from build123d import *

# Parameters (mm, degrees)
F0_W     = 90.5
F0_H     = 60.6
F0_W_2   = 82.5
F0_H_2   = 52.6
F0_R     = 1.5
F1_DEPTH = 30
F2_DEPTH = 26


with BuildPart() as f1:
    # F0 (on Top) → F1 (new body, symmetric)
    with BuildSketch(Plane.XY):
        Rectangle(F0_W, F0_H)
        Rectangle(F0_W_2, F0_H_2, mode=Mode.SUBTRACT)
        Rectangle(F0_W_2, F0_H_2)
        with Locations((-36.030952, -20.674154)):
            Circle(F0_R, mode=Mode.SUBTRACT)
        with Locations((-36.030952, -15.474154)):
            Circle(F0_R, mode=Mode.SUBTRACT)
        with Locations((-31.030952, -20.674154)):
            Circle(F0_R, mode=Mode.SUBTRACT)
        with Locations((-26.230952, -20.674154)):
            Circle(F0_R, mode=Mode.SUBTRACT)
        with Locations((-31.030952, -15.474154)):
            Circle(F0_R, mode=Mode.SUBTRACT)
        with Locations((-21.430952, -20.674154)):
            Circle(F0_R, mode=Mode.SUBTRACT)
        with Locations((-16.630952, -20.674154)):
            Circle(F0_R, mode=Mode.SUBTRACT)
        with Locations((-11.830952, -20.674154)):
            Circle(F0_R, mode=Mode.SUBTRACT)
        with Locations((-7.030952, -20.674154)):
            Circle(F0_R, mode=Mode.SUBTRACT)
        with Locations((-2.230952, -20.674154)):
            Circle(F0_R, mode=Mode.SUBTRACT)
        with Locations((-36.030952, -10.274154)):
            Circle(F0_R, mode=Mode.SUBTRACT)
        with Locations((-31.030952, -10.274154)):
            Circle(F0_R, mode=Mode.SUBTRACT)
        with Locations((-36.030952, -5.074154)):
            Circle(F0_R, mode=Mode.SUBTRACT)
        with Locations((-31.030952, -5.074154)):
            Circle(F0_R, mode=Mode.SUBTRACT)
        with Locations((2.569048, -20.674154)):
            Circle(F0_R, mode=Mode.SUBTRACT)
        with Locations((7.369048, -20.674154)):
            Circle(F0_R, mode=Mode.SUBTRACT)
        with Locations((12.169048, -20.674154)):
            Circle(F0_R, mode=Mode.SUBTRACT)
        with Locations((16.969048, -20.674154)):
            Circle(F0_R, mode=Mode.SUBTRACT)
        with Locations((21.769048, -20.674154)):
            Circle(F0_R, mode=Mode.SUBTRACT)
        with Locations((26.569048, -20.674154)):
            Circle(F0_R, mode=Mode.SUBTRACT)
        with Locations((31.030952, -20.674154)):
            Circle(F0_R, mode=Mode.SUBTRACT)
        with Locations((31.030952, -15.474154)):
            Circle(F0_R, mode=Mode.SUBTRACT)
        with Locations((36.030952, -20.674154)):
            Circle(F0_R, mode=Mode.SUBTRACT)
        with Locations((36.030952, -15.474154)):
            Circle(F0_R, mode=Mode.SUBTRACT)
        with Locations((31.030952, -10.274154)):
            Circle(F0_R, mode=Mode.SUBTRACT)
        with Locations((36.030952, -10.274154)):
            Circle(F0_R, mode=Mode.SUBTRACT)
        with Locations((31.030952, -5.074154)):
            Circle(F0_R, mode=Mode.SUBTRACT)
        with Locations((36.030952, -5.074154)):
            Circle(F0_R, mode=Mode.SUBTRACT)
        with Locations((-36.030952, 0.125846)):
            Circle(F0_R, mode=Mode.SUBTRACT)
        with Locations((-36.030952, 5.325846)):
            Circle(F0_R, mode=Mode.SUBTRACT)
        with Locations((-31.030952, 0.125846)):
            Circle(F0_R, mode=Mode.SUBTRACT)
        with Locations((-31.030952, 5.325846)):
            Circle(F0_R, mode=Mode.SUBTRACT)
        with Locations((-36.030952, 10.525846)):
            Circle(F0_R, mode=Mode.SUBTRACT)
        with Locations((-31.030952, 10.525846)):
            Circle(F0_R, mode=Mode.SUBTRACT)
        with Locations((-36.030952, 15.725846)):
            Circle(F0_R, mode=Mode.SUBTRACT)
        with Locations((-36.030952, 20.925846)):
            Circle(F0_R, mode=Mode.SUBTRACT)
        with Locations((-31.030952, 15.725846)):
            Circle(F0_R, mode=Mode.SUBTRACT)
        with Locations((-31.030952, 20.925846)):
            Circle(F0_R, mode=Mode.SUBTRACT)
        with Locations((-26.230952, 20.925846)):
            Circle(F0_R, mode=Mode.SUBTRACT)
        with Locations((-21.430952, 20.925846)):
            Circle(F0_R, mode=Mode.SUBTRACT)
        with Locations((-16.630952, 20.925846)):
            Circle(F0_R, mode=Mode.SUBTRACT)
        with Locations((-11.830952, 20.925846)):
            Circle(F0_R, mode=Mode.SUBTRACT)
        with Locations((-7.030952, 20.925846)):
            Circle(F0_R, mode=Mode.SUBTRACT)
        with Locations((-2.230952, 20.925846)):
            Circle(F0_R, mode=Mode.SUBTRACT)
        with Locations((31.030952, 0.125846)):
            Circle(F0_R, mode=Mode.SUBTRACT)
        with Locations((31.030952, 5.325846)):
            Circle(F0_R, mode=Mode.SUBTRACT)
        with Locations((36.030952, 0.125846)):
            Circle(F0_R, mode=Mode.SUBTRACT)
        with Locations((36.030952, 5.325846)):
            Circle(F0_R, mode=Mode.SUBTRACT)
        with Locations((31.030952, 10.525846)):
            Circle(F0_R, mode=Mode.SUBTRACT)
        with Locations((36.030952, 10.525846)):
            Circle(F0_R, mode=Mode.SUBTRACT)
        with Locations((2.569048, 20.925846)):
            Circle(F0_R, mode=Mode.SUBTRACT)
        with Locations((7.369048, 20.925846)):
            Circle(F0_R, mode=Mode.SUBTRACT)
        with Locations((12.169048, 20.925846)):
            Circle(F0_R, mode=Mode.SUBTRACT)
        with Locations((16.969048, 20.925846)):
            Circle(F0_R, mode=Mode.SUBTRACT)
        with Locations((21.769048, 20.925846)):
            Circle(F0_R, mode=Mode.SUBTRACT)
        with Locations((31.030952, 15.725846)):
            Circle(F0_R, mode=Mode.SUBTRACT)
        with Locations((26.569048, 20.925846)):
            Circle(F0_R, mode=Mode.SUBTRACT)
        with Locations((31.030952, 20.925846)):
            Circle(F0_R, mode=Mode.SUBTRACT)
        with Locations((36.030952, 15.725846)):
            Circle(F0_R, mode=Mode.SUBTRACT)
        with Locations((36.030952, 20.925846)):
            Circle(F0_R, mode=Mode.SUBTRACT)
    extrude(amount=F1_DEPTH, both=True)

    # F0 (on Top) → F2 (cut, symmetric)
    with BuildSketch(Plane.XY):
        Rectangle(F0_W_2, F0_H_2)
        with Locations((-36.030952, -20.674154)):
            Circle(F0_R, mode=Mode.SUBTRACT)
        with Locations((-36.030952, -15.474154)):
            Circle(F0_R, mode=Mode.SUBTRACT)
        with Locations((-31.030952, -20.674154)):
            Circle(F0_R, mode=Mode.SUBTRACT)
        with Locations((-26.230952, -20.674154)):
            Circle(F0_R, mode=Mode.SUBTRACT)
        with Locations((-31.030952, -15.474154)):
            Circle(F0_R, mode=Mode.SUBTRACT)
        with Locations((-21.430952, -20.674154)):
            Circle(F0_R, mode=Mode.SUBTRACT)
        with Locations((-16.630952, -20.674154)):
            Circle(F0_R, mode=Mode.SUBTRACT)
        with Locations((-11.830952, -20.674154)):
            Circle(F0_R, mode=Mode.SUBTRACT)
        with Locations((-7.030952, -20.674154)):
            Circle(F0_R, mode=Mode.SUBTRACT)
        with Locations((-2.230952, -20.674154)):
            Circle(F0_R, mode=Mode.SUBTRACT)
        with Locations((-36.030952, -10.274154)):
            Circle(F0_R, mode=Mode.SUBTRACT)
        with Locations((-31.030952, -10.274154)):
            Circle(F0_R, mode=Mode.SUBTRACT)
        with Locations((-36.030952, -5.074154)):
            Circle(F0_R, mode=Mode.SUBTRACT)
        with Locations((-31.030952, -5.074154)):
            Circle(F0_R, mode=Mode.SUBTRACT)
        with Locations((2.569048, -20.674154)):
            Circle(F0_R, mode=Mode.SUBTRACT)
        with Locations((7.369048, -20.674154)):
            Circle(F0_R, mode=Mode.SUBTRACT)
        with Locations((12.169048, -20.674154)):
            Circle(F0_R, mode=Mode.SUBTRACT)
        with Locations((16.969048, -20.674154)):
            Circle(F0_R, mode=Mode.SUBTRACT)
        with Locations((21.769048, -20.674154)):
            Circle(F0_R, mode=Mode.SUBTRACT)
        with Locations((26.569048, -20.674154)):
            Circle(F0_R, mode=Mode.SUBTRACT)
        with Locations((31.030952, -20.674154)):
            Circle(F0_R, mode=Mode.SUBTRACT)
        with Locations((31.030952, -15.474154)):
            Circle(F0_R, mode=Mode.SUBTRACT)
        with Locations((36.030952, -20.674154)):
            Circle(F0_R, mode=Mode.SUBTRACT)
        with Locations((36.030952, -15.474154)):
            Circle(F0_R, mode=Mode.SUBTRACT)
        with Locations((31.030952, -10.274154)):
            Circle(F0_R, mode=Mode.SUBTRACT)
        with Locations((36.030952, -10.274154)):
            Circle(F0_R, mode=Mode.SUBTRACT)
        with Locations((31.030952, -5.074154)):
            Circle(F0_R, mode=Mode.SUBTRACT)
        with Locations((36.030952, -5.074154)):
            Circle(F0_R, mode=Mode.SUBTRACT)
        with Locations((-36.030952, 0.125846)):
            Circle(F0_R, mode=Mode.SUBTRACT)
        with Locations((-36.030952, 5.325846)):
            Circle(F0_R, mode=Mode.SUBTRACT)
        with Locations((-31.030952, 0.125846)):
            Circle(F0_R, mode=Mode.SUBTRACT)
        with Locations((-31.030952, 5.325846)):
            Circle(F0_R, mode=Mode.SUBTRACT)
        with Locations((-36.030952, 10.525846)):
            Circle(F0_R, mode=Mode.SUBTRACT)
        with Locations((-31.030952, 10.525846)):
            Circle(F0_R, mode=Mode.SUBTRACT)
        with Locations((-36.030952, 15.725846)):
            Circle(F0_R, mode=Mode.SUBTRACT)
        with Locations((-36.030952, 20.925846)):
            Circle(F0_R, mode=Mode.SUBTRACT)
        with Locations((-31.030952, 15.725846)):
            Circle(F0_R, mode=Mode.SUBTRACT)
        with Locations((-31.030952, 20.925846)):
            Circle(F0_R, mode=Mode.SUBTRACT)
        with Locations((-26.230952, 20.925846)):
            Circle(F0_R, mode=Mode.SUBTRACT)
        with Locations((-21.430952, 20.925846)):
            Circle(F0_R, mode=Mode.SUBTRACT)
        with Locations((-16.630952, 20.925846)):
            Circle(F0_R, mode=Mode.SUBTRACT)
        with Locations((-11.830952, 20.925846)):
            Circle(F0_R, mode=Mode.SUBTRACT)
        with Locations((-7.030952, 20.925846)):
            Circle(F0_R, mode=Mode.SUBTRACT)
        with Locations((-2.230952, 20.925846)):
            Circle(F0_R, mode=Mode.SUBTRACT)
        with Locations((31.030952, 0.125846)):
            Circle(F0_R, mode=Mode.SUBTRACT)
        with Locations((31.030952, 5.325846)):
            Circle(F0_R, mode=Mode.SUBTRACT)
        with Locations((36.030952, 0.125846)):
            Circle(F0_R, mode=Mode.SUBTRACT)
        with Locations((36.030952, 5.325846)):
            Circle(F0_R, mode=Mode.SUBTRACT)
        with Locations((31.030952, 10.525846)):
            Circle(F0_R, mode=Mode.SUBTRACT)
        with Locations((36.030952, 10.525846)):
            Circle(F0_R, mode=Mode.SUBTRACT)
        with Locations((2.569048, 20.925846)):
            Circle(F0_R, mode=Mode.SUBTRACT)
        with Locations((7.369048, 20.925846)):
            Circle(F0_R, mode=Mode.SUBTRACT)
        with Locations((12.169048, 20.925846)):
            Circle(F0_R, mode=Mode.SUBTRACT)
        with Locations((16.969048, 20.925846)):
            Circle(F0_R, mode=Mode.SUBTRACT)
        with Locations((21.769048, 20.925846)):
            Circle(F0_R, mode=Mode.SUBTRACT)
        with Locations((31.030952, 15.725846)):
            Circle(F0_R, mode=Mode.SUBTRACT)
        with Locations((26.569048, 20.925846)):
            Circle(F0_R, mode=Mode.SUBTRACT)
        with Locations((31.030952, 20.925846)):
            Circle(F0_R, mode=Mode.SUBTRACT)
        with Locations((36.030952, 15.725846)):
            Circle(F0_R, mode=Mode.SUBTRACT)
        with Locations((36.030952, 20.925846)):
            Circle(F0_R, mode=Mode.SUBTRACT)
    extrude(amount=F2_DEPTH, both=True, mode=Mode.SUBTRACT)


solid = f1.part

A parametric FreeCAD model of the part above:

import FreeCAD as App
import Part
import Sketcher

V = App.Vector
Q = App.Units.Quantity


def add_polygon(sketch, points):
    """Adds a closed chain of lines whose ends are joined by coincident constraints."""
    first, n = sketch.GeometryCount, len(points)
    for a, b in zip(points, points[1:] + points[:1]):
        sketch.addGeometry(Part.LineSegment(App.Vector(*a, 0), App.Vector(*b, 0)), False)
    for i in range(n):
        sketch.addConstraint(Sketcher.Constraint("Coincident", first + i, 2, first + (i + 1) % n, 1))

doc = App.newDocument("Part")
body = doc.addObject("PartDesign::Body", "Body")

sketch1 = body.newObject("Sketcher::SketchObject", "Sketch")
sketch1.AttachmentSupport = (doc.getObject("XY_Plane"), [""])
sketch1.MapMode = "FlatFace"
add_polygon(sketch1, [(-45.2, 30.3), (-45.2, -30.3), (45.2, -30.3), (45.2, 30.3)])
sketch1.addGeometry(Part.Circle(V(-36, -20.7, 0), V(0, 0, 1), 1.5), False)
sketch1.addGeometry(Part.Circle(V(-31, -20.7, 0), V(0, 0, 1), 1.5), False)
sketch1.addGeometry(Part.Circle(V(-26.2, -20.7, 0), V(0, 0, 1), 1.5), False)
sketch1.addGeometry(Part.Circle(V(-21.4, -20.7, 0), V(0, 0, 1), 1.5), False)
sketch1.addGeometry(Part.Circle(V(-36, -15.5, 0), V(0, 0, 1), 1.5), False)
sketch1.addGeometry(Part.Circle(V(-31, -15.5, 0), V(0, 0, 1), 1.5), False)
sketch1.addGeometry(Part.Circle(V(-16.6, -20.7, 0), V(0, 0, 1), 1.5), False)
sketch1.addGeometry(Part.Circle(V(-11.8, -20.7, 0), V(0, 0, 1), 1.5), False)
sketch1.addGeometry(Part.Circle(V(-7, -20.7, 0), V(0, 0, 1), 1.5), False)
sketch1.addGeometry(Part.Circle(V(-2.2, -20.7, 0), V(0, 0, 1), 1.5), False)
sketch1.addGeometry(Part.Circle(V(-36, -10.3, 0), V(0, 0, 1), 1.5), False)
sketch1.addGeometry(Part.Circle(V(-31, -10.3, 0), V(0, 0, 1), 1.5), False)
sketch1.addGeometry(Part.Circle(V(-36, -5.1, 0), V(0, 0, 1), 1.5), False)
sketch1.addGeometry(Part.Circle(V(-31, -5.1, 0), V(0, 0, 1), 1.5), False)
sketch1.addGeometry(Part.Circle(V(2.6, -20.7, 0), V(0, 0, 1), 1.5), False)
sketch1.addGeometry(Part.Circle(V(7.4, -20.7, 0), V(0, 0, 1), 1.5), False)
sketch1.addGeometry(Part.Circle(V(12.2, -20.7, 0), V(0, 0, 1), 1.5), False)
sketch1.addGeometry(Part.Circle(V(17, -20.7, 0), V(0, 0, 1), 1.5), False)
sketch1.addGeometry(Part.Circle(V(21.8, -20.7, 0), V(0, 0, 1), 1.5), False)
sketch1.addGeometry(Part.Circle(V(26.6, -20.7, 0), V(0, 0, 1), 1.5), False)
sketch1.addGeometry(Part.Circle(V(31, -20.7, 0), V(0, 0, 1), 1.5), False)
sketch1.addGeometry(Part.Circle(V(36, -20.7, 0), V(0, 0, 1), 1.5), False)
sketch1.addGeometry(Part.Circle(V(31, -15.5, 0), V(0, 0, 1), 1.5), False)
sketch1.addGeometry(Part.Circle(V(36, -15.5, 0), V(0, 0, 1), 1.5), False)
sketch1.addGeometry(Part.Circle(V(31, -10.3, 0), V(0, 0, 1), 1.5), False)
sketch1.addGeometry(Part.Circle(V(36, -10.3, 0), V(0, 0, 1), 1.5), False)
sketch1.addGeometry(Part.Circle(V(31, -5.1, 0), V(0, 0, 1), 1.5), False)
sketch1.addGeometry(Part.Circle(V(36, -5.1, 0), V(0, 0, 1), 1.5), False)
sketch1.addGeometry(Part.Circle(V(-36, 0.1, 0), V(0, 0, 1), 1.5), False)
sketch1.addGeometry(Part.Circle(V(-31, 0.1, 0), V(0, 0, 1), 1.5), False)
sketch1.addGeometry(Part.Circle(V(-36, 5.3, 0), V(0, 0, 1), 1.5), False)
sketch1.addGeometry(Part.Circle(V(-31, 5.3, 0), V(0, 0, 1), 1.5), False)
sketch1.addGeometry(Part.Circle(V(-36, 10.5, 0), V(0, 0, 1), 1.5), False)
sketch1.addGeometry(Part.Circle(V(-31, 10.5, 0), V(0, 0, 1), 1.5), False)
sketch1.addGeometry(Part.Circle(V(-36, 15.7, 0), V(0, 0, 1), 1.5), False)
sketch1.addGeometry(Part.Circle(V(-31, 15.7, 0), V(0, 0, 1), 1.5), False)
sketch1.addGeometry(Part.Circle(V(-36, 20.9, 0), V(0, 0, 1), 1.5), False)
sketch1.addGeometry(Part.Circle(V(-31, 20.9, 0), V(0, 0, 1), 1.5), False)
sketch1.addGeometry(Part.Circle(V(-26.2, 20.9, 0), V(0, 0, 1), 1.5), False)
sketch1.addGeometry(Part.Circle(V(-21.4, 20.9, 0), V(0, 0, 1), 1.5), False)
sketch1.addGeometry(Part.Circle(V(-16.6, 20.9, 0), V(0, 0, 1), 1.5), False)
sketch1.addGeometry(Part.Circle(V(-11.8, 20.9, 0), V(0, 0, 1), 1.5), False)
sketch1.addGeometry(Part.Circle(V(-7, 20.9, 0), V(0, 0, 1), 1.5), False)
sketch1.addGeometry(Part.Circle(V(-2.2, 20.9, 0), V(0, 0, 1), 1.5), False)
sketch1.addGeometry(Part.Circle(V(31, 0.1, 0), V(0, 0, 1), 1.5), False)
sketch1.addGeometry(Part.Circle(V(36, 0.1, 0), V(0, 0, 1), 1.5), False)
sketch1.addGeometry(Part.Circle(V(31, 5.3, 0), V(0, 0, 1), 1.5), False)
sketch1.addGeometry(Part.Circle(V(36, 5.3, 0), V(0, 0, 1), 1.5), False)
sketch1.addGeometry(Part.Circle(V(31, 10.5, 0), V(0, 0, 1), 1.5), False)
sketch1.addGeometry(Part.Circle(V(36, 10.5, 0), V(0, 0, 1), 1.5), False)
sketch1.addGeometry(Part.Circle(V(2.6, 20.9, 0), V(0, 0, 1), 1.5), False)
sketch1.addGeometry(Part.Circle(V(7.4, 20.9, 0), V(0, 0, 1), 1.5), False)
sketch1.addGeometry(Part.Circle(V(12.2, 20.9, 0), V(0, 0, 1), 1.5), False)
sketch1.addGeometry(Part.Circle(V(17, 20.9, 0), V(0, 0, 1), 1.5), False)
sketch1.addGeometry(Part.Circle(V(31, 15.7, 0), V(0, 0, 1), 1.5), False)
sketch1.addGeometry(Part.Circle(V(36, 15.7, 0), V(0, 0, 1), 1.5), False)
sketch1.addGeometry(Part.Circle(V(21.8, 20.9, 0), V(0, 0, 1), 1.5), False)
sketch1.addGeometry(Part.Circle(V(26.6, 20.9, 0), V(0, 0, 1), 1.5), False)
sketch1.addGeometry(Part.Circle(V(31, 20.9, 0), V(0, 0, 1), 1.5), False)
sketch1.addGeometry(Part.Circle(V(36, 20.9, 0), V(0, 0, 1), 1.5), False)
sketch1.addConstraint([
    Sketcher.Constraint("Vertical", 0),
    Sketcher.Constraint("Horizontal", 1),
    Sketcher.Constraint("Vertical", 2),
    Sketcher.Constraint("Horizontal", 3),
    Sketcher.Constraint("Equal", 4, 5),
    Sketcher.Constraint("Equal", 5, 6),
    Sketcher.Constraint("Equal", 6, 7),
    Sketcher.Constraint("Equal", 7, 8),
    Sketcher.Constraint("Equal", 8, 9),
    Sketcher.Constraint("Equal", 9, 10),
    Sketcher.Constraint("Equal", 10, 11),
    Sketcher.Constraint("Equal", 11, 12),
    Sketcher.Constraint("Equal", 12, 13),
    Sketcher.Constraint("Equal", 13, 14),
    Sketcher.Constraint("Equal", 14, 15),
    Sketcher.Constraint("Equal", 15, 16),
    Sketcher.Constraint("Equal", 16, 17),
    Sketcher.Constraint("Equal", 17, 18),
    Sketcher.Constraint("Equal", 18, 19),
    Sketcher.Constraint("Equal", 19, 20),
    Sketcher.Constraint("Equal", 20, 21),
    Sketcher.Constraint("Equal", 21, 22),
    Sketcher.Constraint("Equal", 22, 23),
    Sketcher.Constraint("Equal", 23, 24),
    Sketcher.Constraint("Equal", 24, 25),
    Sketcher.Constraint("Equal", 25, 26),
    Sketcher.Constraint("Equal", 26, 27),
    Sketcher.Constraint("Equal", 27, 28),
    Sketcher.Constraint("Equal", 28, 29),
    Sketcher.Constraint("Equal", 29, 30),
    Sketcher.Constraint("Equal", 30, 31),
    Sketcher.Constraint("Equal", 31, 32),
    Sketcher.Constraint("Equal", 32, 33),
    Sketcher.Constraint("Equal", 33, 34),
    Sketcher.Constraint("Equal", 34, 35),
    Sketcher.Constraint("Equal", 35, 36),
    Sketcher.Constraint("Equal", 36, 37),
    Sketcher.Constraint("Equal", 37, 38),
    Sketcher.Constraint("Equal", 38, 39),
    Sketcher.Constraint("Equal", 39, 40),
    Sketcher.Constraint("Equal", 40, 41),
    Sketcher.Constraint("Equal", 41, 42),
    Sketcher.Constraint("Equal", 42, 43),
    Sketcher.Constraint("Equal", 43, 44),
    Sketcher.Constraint("Equal", 44, 45),
    Sketcher.Constraint("Equal", 45, 46),
    Sketcher.Constraint("Equal", 46, 47),
    Sketcher.Constraint("Equal", 47, 48),
    Sketcher.Constraint("Equal", 48, 49),
    Sketcher.Constraint("Equal", 49, 50),
    Sketcher.Constraint("Equal", 50, 51),
    Sketcher.Constraint("Equal", 51, 52),
    Sketcher.Constraint("Equal", 52, 53),
    Sketcher.Constraint("Equal", 53, 54),
    Sketcher.Constraint("Equal", 54, 55),
    Sketcher.Constraint("Equal", 55, 56),
    Sketcher.Constraint("Equal", 56, 57),
    Sketcher.Constraint("Equal", 57, 58),
    Sketcher.Constraint("Equal", 58, 59),
    Sketcher.Constraint("Equal", 59, 60),
    Sketcher.Constraint("Equal", 60, 61),
    Sketcher.Constraint("Equal", 61, 62),
    Sketcher.Constraint("Equal", 62, 63),
    Sketcher.Constraint("Symmetric", 0, 2, 2, 2, -1, 1),
    Sketcher.Constraint("Symmetric", 5, 3, 24, 3, -2),
    Sketcher.Constraint("Symmetric", 4, 3, 25, 3, -2),
    Sketcher.Constraint("Symmetric", 9, 3, 26, 3, -2),
    Sketcher.Constraint("Symmetric", 8, 3, 27, 3, -2),
    Sketcher.Constraint("Symmetric", 15, 3, 28, 3, -2),
    Sketcher.Constraint("Symmetric", 14, 3, 29, 3, -2),
    Sketcher.Constraint("Symmetric", 17, 3, 30, 3, -2),
    Sketcher.Constraint("Symmetric", 16, 3, 31, 3, -2),
    Sketcher.Constraint("Symmetric", 33, 3, 48, 3, -2),
    Sketcher.Constraint("Symmetric", 32, 3, 49, 3, -2),
    Sketcher.Constraint("Symmetric", 35, 3, 50, 3, -2),
    Sketcher.Constraint("Symmetric", 34, 3, 51, 3, -2),
    Sketcher.Constraint("Symmetric", 37, 3, 52, 3, -2),
    Sketcher.Constraint("Symmetric", 36, 3, 53, 3, -2),
    Sketcher.Constraint("Symmetric", 39, 3, 58, 3, -2),
    Sketcher.Constraint("Symmetric", 38, 3, 59, 3, -2),
    Sketcher.Constraint("Symmetric", 41, 3, 62, 3, -2),
    Sketcher.Constraint("Symmetric", 40, 3, 63, 3, -2),
    Sketcher.Constraint("Horizontal", 4, 3, 5, 3),
    Sketcher.Constraint("Horizontal", 5, 3, 6, 3),
    Sketcher.Constraint("Horizontal", 6, 3, 7, 3),
    Sketcher.Constraint("Horizontal", 8, 3, 9, 3),
    Sketcher.Constraint("Horizontal", 7, 3, 10, 3),
    Sketcher.Constraint("Horizontal", 10, 3, 11, 3),
    Sketcher.Constraint("Horizontal", 11, 3, 12, 3),
    Sketcher.Constraint("Horizontal", 12, 3, 13, 3),
    Sketcher.Constraint("Horizontal", 14, 3, 15, 3),
    Sketcher.Constraint("Horizontal", 16, 3, 17, 3),
    Sketcher.Constraint("Horizontal", 13, 3, 18, 3),
    Sketcher.Constraint("Horizontal", 18, 3, 19, 3),
    Sketcher.Constraint("Horizontal", 19, 3, 20, 3),
    Sketcher.Constraint("Horizontal", 20, 3, 21, 3),
    Sketcher.Constraint("Horizontal", 21, 3, 22, 3),
    Sketcher.Constraint("Horizontal", 22, 3, 23, 3),
    Sketcher.Constraint("Horizontal", 32, 3, 33, 3),
    Sketcher.Constraint("Horizontal", 34, 3, 35, 3),
    Sketcher.Constraint("Horizontal", 36, 3, 37, 3),
    Sketcher.Constraint("Horizontal", 38, 3, 39, 3),
    Sketcher.Constraint("Horizontal", 40, 3, 41, 3),
    Sketcher.Constraint("Horizontal", 41, 3, 42, 3),
    Sketcher.Constraint("Horizontal", 42, 3, 43, 3),
    Sketcher.Constraint("Horizontal", 43, 3, 44, 3),
    Sketcher.Constraint("Horizontal", 44, 3, 45, 3),
    Sketcher.Constraint("Horizontal", 45, 3, 46, 3),
    Sketcher.Constraint("Horizontal", 46, 3, 47, 3),
    Sketcher.Constraint("Horizontal", 47, 3, 54, 3),
    Sketcher.Constraint("Horizontal", 54, 3, 55, 3),
    Sketcher.Constraint("Horizontal", 55, 3, 56, 3),
    Sketcher.Constraint("Horizontal", 56, 3, 57, 3),
    Sketcher.Constraint("Horizontal", 57, 3, 60, 3),
    Sketcher.Constraint("Horizontal", 60, 3, 61, 3),
    Sketcher.Constraint("Vertical", 4, 3, 8, 3),
    Sketcher.Constraint("Vertical", 5, 3, 9, 3),
    Sketcher.Constraint("Vertical", 8, 3, 14, 3),
    Sketcher.Constraint("Vertical", 9, 3, 15, 3),
    Sketcher.Constraint("Vertical", 14, 3, 16, 3),
    Sketcher.Constraint("Vertical", 15, 3, 17, 3),
    Sketcher.Constraint("Vertical", 16, 3, 32, 3),
    Sketcher.Constraint("Vertical", 17, 3, 33, 3),
    Sketcher.Constraint("Vertical", 32, 3, 34, 3),
    Sketcher.Constraint("Vertical", 33, 3, 35, 3),
    Sketcher.Constraint("Vertical", 34, 3, 36, 3),
    Sketcher.Constraint("Vertical", 35, 3, 37, 3),
    Sketcher.Constraint("Vertical", 36, 3, 38, 3),
    Sketcher.Constraint("Vertical", 37, 3, 39, 3),
    Sketcher.Constraint("Vertical", 38, 3, 40, 3),
    Sketcher.Constraint("Vertical", 39, 3, 41, 3),
    Sketcher.Constraint("Vertical", 6, 3, 42, 3),
    Sketcher.Constraint("Vertical", 7, 3, 43, 3),
    Sketcher.Constraint("Vertical", 10, 3, 44, 3),
    Sketcher.Constraint("Vertical", 11, 3, 45, 3),
    Sketcher.Constraint("Vertical", 12, 3, 46, 3),
    Sketcher.Constraint("Vertical", 13, 3, 47, 3),
    Sketcher.Constraint("Vertical", 18, 3, 54, 3),
    Sketcher.Constraint("Vertical", 19, 3, 55, 3),
    Sketcher.Constraint("Vertical", 20, 3, 56, 3),
    Sketcher.Constraint("Vertical", 21, 3, 57, 3),
    Sketcher.Constraint("Vertical", 22, 3, 60, 3),
    Sketcher.Constraint("Vertical", 23, 3, 61, 3),
    Sketcher.Constraint("Diameter", 4, Q("3 mm")),
    Sketcher.Constraint("DistanceX", 1, 1, 1, 2, Q("90.5 mm")),
    Sketcher.Constraint("DistanceY", 0, 2, 0, 1, Q("60.6 mm")),
    Sketcher.Constraint("DistanceX", 5, 3, -1, 1, Q("31.030952 mm")),
    Sketcher.Constraint("DistanceX", 6, 3, -1, 1, Q("26.230952 mm")),
    Sketcher.Constraint("DistanceX", 13, 3, -1, 1, Q("2.230952 mm")),
    Sketcher.Constraint("DistanceX", -1, 1, 18, 3, Q("2.569048 mm")),
    Sketcher.Constraint("DistanceX", -1, 1, 19, 3, Q("7.369048 mm")),
    Sketcher.Constraint("DistanceX", -1, 1, 21, 3, Q("16.969048 mm")),
    Sketcher.Constraint("DistanceX", -1, 1, 22, 3, Q("21.769048 mm")),
    Sketcher.Constraint("DistanceX", 4, 3, -1, 1, Q("36.030952 mm")),
    Sketcher.Constraint("DistanceY", 4, 3, -1, 1, Q("20.674154 mm")),
    Sketcher.Constraint("DistanceX", 7, 3, -1, 1, Q("21.430952 mm")),
    Sketcher.Constraint("DistanceY", 8, 3, -1, 1, Q("15.474154 mm")),
    Sketcher.Constraint("DistanceX", 10, 3, -1, 1, Q("16.630952 mm")),
    Sketcher.Constraint("DistanceX", 11, 3, -1, 1, Q("11.830952 mm")),
    Sketcher.Constraint("DistanceX", 12, 3, -1, 1, Q("7.030952 mm")),
    Sketcher.Constraint("DistanceY", 14, 3, -1, 1, Q("10.274154 mm")),
    Sketcher.Constraint("DistanceY", 16, 3, -1, 1, Q("5.074154 mm")),
    Sketcher.Constraint("DistanceX", -1, 1, 20, 3, Q("12.169048 mm")),
    Sketcher.Constraint("DistanceX", -1, 1, 23, 3, Q("26.569048 mm")),
    Sketcher.Constraint("DistanceY", -1, 1, 32, 3, Q("0.125846 mm")),
    Sketcher.Constraint("DistanceY", -1, 1, 34, 3, Q("5.325846 mm")),
    Sketcher.Constraint("DistanceY", -1, 1, 36, 3, Q("10.525846 mm")),
    Sketcher.Constraint("DistanceY", -1, 1, 38, 3, Q("15.725846 mm")),
    Sketcher.Constraint("DistanceY", -1, 1, 40, 3, Q("20.925846 mm")),
])
pad1 = body.newObject("PartDesign::Pad", "Pad")
pad1.Profile = sketch1
pad1.Length = 60
pad1.Midplane = True

sketch2 = body.newObject("Sketcher::SketchObject", "Sketch001")
sketch2.AttachmentSupport = (doc.getObject("XY_Plane"), [""])
sketch2.MapMode = "FlatFace"
add_polygon(sketch2, [(-41.2, 26.3), (-41.2, -26.3), (41.2, -26.3), (41.2, 26.3)])
sketch2.addGeometry(Part.Circle(V(-36, -20.7, 0), V(0, 0, 1), 1.5), False)
sketch2.addGeometry(Part.Circle(V(-31, -20.7, 0), V(0, 0, 1), 1.5), False)
sketch2.addGeometry(Part.Circle(V(-26.2, -20.7, 0), V(0, 0, 1), 1.5), False)
sketch2.addGeometry(Part.Circle(V(-21.4, -20.7, 0), V(0, 0, 1), 1.5), False)
sketch2.addGeometry(Part.Circle(V(-36, -15.5, 0), V(0, 0, 1), 1.5), False)
sketch2.addGeometry(Part.Circle(V(-31, -15.5, 0), V(0, 0, 1), 1.5), False)
sketch2.addGeometry(Part.Circle(V(-16.6, -20.7, 0), V(0, 0, 1), 1.5), False)
sketch2.addGeometry(Part.Circle(V(-11.8, -20.7, 0), V(0, 0, 1), 1.5), False)
sketch2.addGeometry(Part.Circle(V(-7, -20.7, 0), V(0, 0, 1), 1.5), False)
sketch2.addGeometry(Part.Circle(V(-2.2, -20.7, 0), V(0, 0, 1), 1.5), False)
sketch2.addGeometry(Part.Circle(V(-36, -10.3, 0), V(0, 0, 1), 1.5), False)
sketch2.addGeometry(Part.Circle(V(-31, -10.3, 0), V(0, 0, 1), 1.5), False)
sketch2.addGeometry(Part.Circle(V(-36, -5.1, 0), V(0, 0, 1), 1.5), False)
sketch2.addGeometry(Part.Circle(V(-31, -5.1, 0), V(0, 0, 1), 1.5), False)
sketch2.addGeometry(Part.Circle(V(2.6, -20.7, 0), V(0, 0, 1), 1.5), False)
sketch2.addGeometry(Part.Circle(V(7.4, -20.7, 0), V(0, 0, 1), 1.5), False)
sketch2.addGeometry(Part.Circle(V(12.2, -20.7, 0), V(0, 0, 1), 1.5), False)
sketch2.addGeometry(Part.Circle(V(17, -20.7, 0), V(0, 0, 1), 1.5), False)
sketch2.addGeometry(Part.Circle(V(21.8, -20.7, 0), V(0, 0, 1), 1.5), False)
sketch2.addGeometry(Part.Circle(V(26.6, -20.7, 0), V(0, 0, 1), 1.5), False)
sketch2.addGeometry(Part.Circle(V(31, -20.7, 0), V(0, 0, 1), 1.5), False)
sketch2.addGeometry(Part.Circle(V(36, -20.7, 0), V(0, 0, 1), 1.5), False)
sketch2.addGeometry(Part.Circle(V(31, -15.5, 0), V(0, 0, 1), 1.5), False)
sketch2.addGeometry(Part.Circle(V(36, -15.5, 0), V(0, 0, 1), 1.5), False)
sketch2.addGeometry(Part.Circle(V(31, -10.3, 0), V(0, 0, 1), 1.5), False)
sketch2.addGeometry(Part.Circle(V(36, -10.3, 0), V(0, 0, 1), 1.5), False)
sketch2.addGeometry(Part.Circle(V(31, -5.1, 0), V(0, 0, 1), 1.5), False)
sketch2.addGeometry(Part.Circle(V(36, -5.1, 0), V(0, 0, 1), 1.5), False)
sketch2.addGeometry(Part.Circle(V(-36, 0.1, 0), V(0, 0, 1), 1.5), False)
sketch2.addGeometry(Part.Circle(V(-31, 0.1, 0), V(0, 0, 1), 1.5), False)
sketch2.addGeometry(Part.Circle(V(-36, 5.3, 0), V(0, 0, 1), 1.5), False)
sketch2.addGeometry(Part.Circle(V(-31, 5.3, 0), V(0, 0, 1), 1.5), False)
sketch2.addGeometry(Part.Circle(V(-36, 10.5, 0), V(0, 0, 1), 1.5), False)
sketch2.addGeometry(Part.Circle(V(-31, 10.5, 0), V(0, 0, 1), 1.5), False)
sketch2.addGeometry(Part.Circle(V(-36, 15.7, 0), V(0, 0, 1), 1.5), False)
sketch2.addGeometry(Part.Circle(V(-31, 15.7, 0), V(0, 0, 1), 1.5), False)
sketch2.addGeometry(Part.Circle(V(-36, 20.9, 0), V(0, 0, 1), 1.5), False)
sketch2.addGeometry(Part.Circle(V(-31, 20.9, 0), V(0, 0, 1), 1.5), False)
sketch2.addGeometry(Part.Circle(V(-26.2, 20.9, 0), V(0, 0, 1), 1.5), False)
sketch2.addGeometry(Part.Circle(V(-21.4, 20.9, 0), V(0, 0, 1), 1.5), False)
sketch2.addGeometry(Part.Circle(V(-16.6, 20.9, 0), V(0, 0, 1), 1.5), False)
sketch2.addGeometry(Part.Circle(V(-11.8, 20.9, 0), V(0, 0, 1), 1.5), False)
sketch2.addGeometry(Part.Circle(V(-7, 20.9, 0), V(0, 0, 1), 1.5), False)
sketch2.addGeometry(Part.Circle(V(-2.2, 20.9, 0), V(0, 0, 1), 1.5), False)
sketch2.addGeometry(Part.Circle(V(31, 0.1, 0), V(0, 0, 1), 1.5), False)
sketch2.addGeometry(Part.Circle(V(36, 0.1, 0), V(0, 0, 1), 1.5), False)
sketch2.addGeometry(Part.Circle(V(31, 5.3, 0), V(0, 0, 1), 1.5), False)
sketch2.addGeometry(Part.Circle(V(36, 5.3, 0), V(0, 0, 1), 1.5), False)
sketch2.addGeometry(Part.Circle(V(31, 10.5, 0), V(0, 0, 1), 1.5), False)
sketch2.addGeometry(Part.Circle(V(36, 10.5, 0), V(0, 0, 1), 1.5), False)
sketch2.addGeometry(Part.Circle(V(2.6, 20.9, 0), V(0, 0, 1), 1.5), False)
sketch2.addGeometry(Part.Circle(V(7.4, 20.9, 0), V(0, 0, 1), 1.5), False)
sketch2.addGeometry(Part.Circle(V(12.2, 20.9, 0), V(0, 0, 1), 1.5), False)
sketch2.addGeometry(Part.Circle(V(17, 20.9, 0), V(0, 0, 1), 1.5), False)
sketch2.addGeometry(Part.Circle(V(31, 15.7, 0), V(0, 0, 1), 1.5), False)
sketch2.addGeometry(Part.Circle(V(36, 15.7, 0), V(0, 0, 1), 1.5), False)
sketch2.addGeometry(Part.Circle(V(21.8, 20.9, 0), V(0, 0, 1), 1.5), False)
sketch2.addGeometry(Part.Circle(V(26.6, 20.9, 0), V(0, 0, 1), 1.5), False)
sketch2.addGeometry(Part.Circle(V(31, 20.9, 0), V(0, 0, 1), 1.5), False)
sketch2.addGeometry(Part.Circle(V(36, 20.9, 0), V(0, 0, 1), 1.5), False)
sketch2.addConstraint([
    Sketcher.Constraint("Vertical", 0),
    Sketcher.Constraint("Horizontal", 1),
    Sketcher.Constraint("Vertical", 2),
    Sketcher.Constraint("Horizontal", 3),
    Sketcher.Constraint("Equal", 4, 5),
    Sketcher.Constraint("Equal", 5, 6),
    Sketcher.Constraint("Equal", 6, 7),
    Sketcher.Constraint("Equal", 7, 8),
    Sketcher.Constraint("Equal", 8, 9),
    Sketcher.Constraint("Equal", 9, 10),
    Sketcher.Constraint("Equal", 10, 11),
    Sketcher.Constraint("Equal", 11, 12),
    Sketcher.Constraint("Equal", 12, 13),
    Sketcher.Constraint("Equal", 13, 14),
    Sketcher.Constraint("Equal", 14, 15),
    Sketcher.Constraint("Equal", 15, 16),
    Sketcher.Constraint("Equal", 16, 17),
    Sketcher.Constraint("Equal", 17, 18),
    Sketcher.Constraint("Equal", 18, 19),
    Sketcher.Constraint("Equal", 19, 20),
    Sketcher.Constraint("Equal", 20, 21),
    Sketcher.Constraint("Equal", 21, 22),
    Sketcher.Constraint("Equal", 22, 23),
    Sketcher.Constraint("Equal", 23, 24),
    Sketcher.Constraint("Equal", 24, 25),
    Sketcher.Constraint("Equal", 25, 26),
    Sketcher.Constraint("Equal", 26, 27),
    Sketcher.Constraint("Equal", 27, 28),
    Sketcher.Constraint("Equal", 28, 29),
    Sketcher.Constraint("Equal", 29, 30),
    Sketcher.Constraint("Equal", 30, 31),
    Sketcher.Constraint("Equal", 31, 32),
    Sketcher.Constraint("Equal", 32, 33),
    Sketcher.Constraint("Equal", 33, 34),
    Sketcher.Constraint("Equal", 34, 35),
    Sketcher.Constraint("Equal", 35, 36),
    Sketcher.Constraint("Equal", 36, 37),
    Sketcher.Constraint("Equal", 37, 38),
    Sketcher.Constraint("Equal", 38, 39),
    Sketcher.Constraint("Equal", 39, 40),
    Sketcher.Constraint("Equal", 40, 41),
    Sketcher.Constraint("Equal", 41, 42),
    Sketcher.Constraint("Equal", 42, 43),
    Sketcher.Constraint("Equal", 43, 44),
    Sketcher.Constraint("Equal", 44, 45),
    Sketcher.Constraint("Equal", 45, 46),
    Sketcher.Constraint("Equal", 46, 47),
    Sketcher.Constraint("Equal", 47, 48),
    Sketcher.Constraint("Equal", 48, 49),
    Sketcher.Constraint("Equal", 49, 50),
    Sketcher.Constraint("Equal", 50, 51),
    Sketcher.Constraint("Equal", 51, 52),
    Sketcher.Constraint("Equal", 52, 53),
    Sketcher.Constraint("Equal", 53, 54),
    Sketcher.Constraint("Equal", 54, 55),
    Sketcher.Constraint("Equal", 55, 56),
    Sketcher.Constraint("Equal", 56, 57),
    Sketcher.Constraint("Equal", 57, 58),
    Sketcher.Constraint("Equal", 58, 59),
    Sketcher.Constraint("Equal", 59, 60),
    Sketcher.Constraint("Equal", 60, 61),
    Sketcher.Constraint("Equal", 61, 62),
    Sketcher.Constraint("Equal", 62, 63),
    Sketcher.Constraint("Symmetric", 0, 2, 2, 2, -1, 1),
    Sketcher.Constraint("Symmetric", 5, 3, 24, 3, -2),
    Sketcher.Constraint("Symmetric", 4, 3, 25, 3, -2),
    Sketcher.Constraint("Symmetric", 9, 3, 26, 3, -2),
    Sketcher.Constraint("Symmetric", 8, 3, 27, 3, -2),
    Sketcher.Constraint("Symmetric", 15, 3, 28, 3, -2),
    Sketcher.Constraint("Symmetric", 14, 3, 29, 3, -2),
    Sketcher.Constraint("Symmetric", 17, 3, 30, 3, -2),
    Sketcher.Constraint("Symmetric", 16, 3, 31, 3, -2),
    Sketcher.Constraint("Symmetric", 33, 3, 48, 3, -2),
    Sketcher.Constraint("Symmetric", 32, 3, 49, 3, -2),
    Sketcher.Constraint("Symmetric", 35, 3, 50, 3, -2),
    Sketcher.Constraint("Symmetric", 34, 3, 51, 3, -2),
    Sketcher.Constraint("Symmetric", 37, 3, 52, 3, -2),
    Sketcher.Constraint("Symmetric", 36, 3, 53, 3, -2),
    Sketcher.Constraint("Symmetric", 39, 3, 58, 3, -2),
    Sketcher.Constraint("Symmetric", 38, 3, 59, 3, -2),
    Sketcher.Constraint("Symmetric", 41, 3, 62, 3, -2),
    Sketcher.Constraint("Symmetric", 40, 3, 63, 3, -2),
    Sketcher.Constraint("Horizontal", 4, 3, 5, 3),
    Sketcher.Constraint("Horizontal", 5, 3, 6, 3),
    Sketcher.Constraint("Horizontal", 6, 3, 7, 3),
    Sketcher.Constraint("Horizontal", 8, 3, 9, 3),
    Sketcher.Constraint("Horizontal", 7, 3, 10, 3),
    Sketcher.Constraint("Horizontal", 10, 3, 11, 3),
    Sketcher.Constraint("Horizontal", 11, 3, 12, 3),
    Sketcher.Constraint("Horizontal", 12, 3, 13, 3),
    Sketcher.Constraint("Horizontal", 14, 3, 15, 3),
    Sketcher.Constraint("Horizontal", 16, 3, 17, 3),
    Sketcher.Constraint("Horizontal", 13, 3, 18, 3),
    Sketcher.Constraint("Horizontal", 18, 3, 19, 3),
    Sketcher.Constraint("Horizontal", 19, 3, 20, 3),
    Sketcher.Constraint("Horizontal", 20, 3, 21, 3),
    Sketcher.Constraint("Horizontal", 21, 3, 22, 3),
    Sketcher.Constraint("Horizontal", 22, 3, 23, 3),
    Sketcher.Constraint("Horizontal", 32, 3, 33, 3),
    Sketcher.Constraint("Horizontal", 34, 3, 35, 3),
    Sketcher.Constraint("Horizontal", 36, 3, 37, 3),
    Sketcher.Constraint("Horizontal", 38, 3, 39, 3),
    Sketcher.Constraint("Horizontal", 40, 3, 41, 3),
    Sketcher.Constraint("Horizontal", 41, 3, 42, 3),
    Sketcher.Constraint("Horizontal", 42, 3, 43, 3),
    Sketcher.Constraint("Horizontal", 43, 3, 44, 3),
    Sketcher.Constraint("Horizontal", 44, 3, 45, 3),
    Sketcher.Constraint("Horizontal", 45, 3, 46, 3),
    Sketcher.Constraint("Horizontal", 46, 3, 47, 3),
    Sketcher.Constraint("Horizontal", 47, 3, 54, 3),
    Sketcher.Constraint("Horizontal", 54, 3, 55, 3),
    Sketcher.Constraint("Horizontal", 55, 3, 56, 3),
    Sketcher.Constraint("Horizontal", 56, 3, 57, 3),
    Sketcher.Constraint("Horizontal", 57, 3, 60, 3),
    Sketcher.Constraint("Horizontal", 60, 3, 61, 3),
    Sketcher.Constraint("Vertical", 4, 3, 8, 3),
    Sketcher.Constraint("Vertical", 5, 3, 9, 3),
    Sketcher.Constraint("Vertical", 8, 3, 14, 3),
    Sketcher.Constraint("Vertical", 9, 3, 15, 3),
    Sketcher.Constraint("Vertical", 14, 3, 16, 3),
    Sketcher.Constraint("Vertical", 15, 3, 17, 3),
    Sketcher.Constraint("Vertical", 16, 3, 32, 3),
    Sketcher.Constraint("Vertical", 17, 3, 33, 3),
    Sketcher.Constraint("Vertical", 32, 3, 34, 3),
    Sketcher.Constraint("Vertical", 33, 3, 35, 3),
    Sketcher.Constraint("Vertical", 34, 3, 36, 3),
    Sketcher.Constraint("Vertical", 35, 3, 37, 3),
    Sketcher.Constraint("Vertical", 36, 3, 38, 3),
    Sketcher.Constraint("Vertical", 37, 3, 39, 3),
    Sketcher.Constraint("Vertical", 38, 3, 40, 3),
    Sketcher.Constraint("Vertical", 39, 3, 41, 3),
    Sketcher.Constraint("Vertical", 6, 3, 42, 3),
    Sketcher.Constraint("Vertical", 7, 3, 43, 3),
    Sketcher.Constraint("Vertical", 10, 3, 44, 3),
    Sketcher.Constraint("Vertical", 11, 3, 45, 3),
    Sketcher.Constraint("Vertical", 12, 3, 46, 3),
    Sketcher.Constraint("Vertical", 13, 3, 47, 3),
    Sketcher.Constraint("Vertical", 18, 3, 54, 3),
    Sketcher.Constraint("Vertical", 19, 3, 55, 3),
    Sketcher.Constraint("Vertical", 20, 3, 56, 3),
    Sketcher.Constraint("Vertical", 21, 3, 57, 3),
    Sketcher.Constraint("Vertical", 22, 3, 60, 3),
    Sketcher.Constraint("Vertical", 23, 3, 61, 3),
    Sketcher.Constraint("Diameter", 4, Q("3 mm")),
    Sketcher.Constraint("DistanceX", 1, 1, 1, 2, Q("82.5 mm")),
    Sketcher.Constraint("DistanceY", 0, 2, 0, 1, Q("52.6 mm")),
    Sketcher.Constraint("DistanceX", 5, 3, -1, 1, Q("31.030952 mm")),
    Sketcher.Constraint("DistanceX", 6, 3, -1, 1, Q("26.230952 mm")),
    Sketcher.Constraint("DistanceX", 13, 3, -1, 1, Q("2.230952 mm")),
    Sketcher.Constraint("DistanceX", -1, 1, 18, 3, Q("2.569048 mm")),
    Sketcher.Constraint("DistanceX", -1, 1, 19, 3, Q("7.369048 mm")),
    Sketcher.Constraint("DistanceX", -1, 1, 21, 3, Q("16.969048 mm")),
    Sketcher.Constraint("DistanceX", -1, 1, 22, 3, Q("21.769048 mm")),
    Sketcher.Constraint("DistanceX", 4, 3, -1, 1, Q("36.030952 mm")),
    Sketcher.Constraint("DistanceY", 4, 3, -1, 1, Q("20.674154 mm")),
    Sketcher.Constraint("DistanceX", 7, 3, -1, 1, Q("21.430952 mm")),
    Sketcher.Constraint("DistanceY", 8, 3, -1, 1, Q("15.474154 mm")),
    Sketcher.Constraint("DistanceX", 10, 3, -1, 1, Q("16.630952 mm")),
    Sketcher.Constraint("DistanceX", 11, 3, -1, 1, Q("11.830952 mm")),
    Sketcher.Constraint("DistanceX", 12, 3, -1, 1, Q("7.030952 mm")),
    Sketcher.Constraint("DistanceY", 14, 3, -1, 1, Q("10.274154 mm")),
    Sketcher.Constraint("DistanceY", 16, 3, -1, 1, Q("5.074154 mm")),
    Sketcher.Constraint("DistanceX", -1, 1, 20, 3, Q("12.169048 mm")),
    Sketcher.Constraint("DistanceX", -1, 1, 23, 3, Q("26.569048 mm")),
    Sketcher.Constraint("DistanceY", -1, 1, 32, 3, Q("0.125846 mm")),
    Sketcher.Constraint("DistanceY", -1, 1, 34, 3, Q("5.325846 mm")),
    Sketcher.Constraint("DistanceY", -1, 1, 36, 3, Q("10.525846 mm")),
    Sketcher.Constraint("DistanceY", -1, 1, 38, 3, Q("15.725846 mm")),
    Sketcher.Constraint("DistanceY", -1, 1, 40, 3, Q("20.925846 mm")),
])
pocket1 = body.newObject("PartDesign::Pocket", "Pocket")
pocket1.Profile = sketch2
pocket1.Length = 52
pocket1.Midplane = True

doc.recompute()
